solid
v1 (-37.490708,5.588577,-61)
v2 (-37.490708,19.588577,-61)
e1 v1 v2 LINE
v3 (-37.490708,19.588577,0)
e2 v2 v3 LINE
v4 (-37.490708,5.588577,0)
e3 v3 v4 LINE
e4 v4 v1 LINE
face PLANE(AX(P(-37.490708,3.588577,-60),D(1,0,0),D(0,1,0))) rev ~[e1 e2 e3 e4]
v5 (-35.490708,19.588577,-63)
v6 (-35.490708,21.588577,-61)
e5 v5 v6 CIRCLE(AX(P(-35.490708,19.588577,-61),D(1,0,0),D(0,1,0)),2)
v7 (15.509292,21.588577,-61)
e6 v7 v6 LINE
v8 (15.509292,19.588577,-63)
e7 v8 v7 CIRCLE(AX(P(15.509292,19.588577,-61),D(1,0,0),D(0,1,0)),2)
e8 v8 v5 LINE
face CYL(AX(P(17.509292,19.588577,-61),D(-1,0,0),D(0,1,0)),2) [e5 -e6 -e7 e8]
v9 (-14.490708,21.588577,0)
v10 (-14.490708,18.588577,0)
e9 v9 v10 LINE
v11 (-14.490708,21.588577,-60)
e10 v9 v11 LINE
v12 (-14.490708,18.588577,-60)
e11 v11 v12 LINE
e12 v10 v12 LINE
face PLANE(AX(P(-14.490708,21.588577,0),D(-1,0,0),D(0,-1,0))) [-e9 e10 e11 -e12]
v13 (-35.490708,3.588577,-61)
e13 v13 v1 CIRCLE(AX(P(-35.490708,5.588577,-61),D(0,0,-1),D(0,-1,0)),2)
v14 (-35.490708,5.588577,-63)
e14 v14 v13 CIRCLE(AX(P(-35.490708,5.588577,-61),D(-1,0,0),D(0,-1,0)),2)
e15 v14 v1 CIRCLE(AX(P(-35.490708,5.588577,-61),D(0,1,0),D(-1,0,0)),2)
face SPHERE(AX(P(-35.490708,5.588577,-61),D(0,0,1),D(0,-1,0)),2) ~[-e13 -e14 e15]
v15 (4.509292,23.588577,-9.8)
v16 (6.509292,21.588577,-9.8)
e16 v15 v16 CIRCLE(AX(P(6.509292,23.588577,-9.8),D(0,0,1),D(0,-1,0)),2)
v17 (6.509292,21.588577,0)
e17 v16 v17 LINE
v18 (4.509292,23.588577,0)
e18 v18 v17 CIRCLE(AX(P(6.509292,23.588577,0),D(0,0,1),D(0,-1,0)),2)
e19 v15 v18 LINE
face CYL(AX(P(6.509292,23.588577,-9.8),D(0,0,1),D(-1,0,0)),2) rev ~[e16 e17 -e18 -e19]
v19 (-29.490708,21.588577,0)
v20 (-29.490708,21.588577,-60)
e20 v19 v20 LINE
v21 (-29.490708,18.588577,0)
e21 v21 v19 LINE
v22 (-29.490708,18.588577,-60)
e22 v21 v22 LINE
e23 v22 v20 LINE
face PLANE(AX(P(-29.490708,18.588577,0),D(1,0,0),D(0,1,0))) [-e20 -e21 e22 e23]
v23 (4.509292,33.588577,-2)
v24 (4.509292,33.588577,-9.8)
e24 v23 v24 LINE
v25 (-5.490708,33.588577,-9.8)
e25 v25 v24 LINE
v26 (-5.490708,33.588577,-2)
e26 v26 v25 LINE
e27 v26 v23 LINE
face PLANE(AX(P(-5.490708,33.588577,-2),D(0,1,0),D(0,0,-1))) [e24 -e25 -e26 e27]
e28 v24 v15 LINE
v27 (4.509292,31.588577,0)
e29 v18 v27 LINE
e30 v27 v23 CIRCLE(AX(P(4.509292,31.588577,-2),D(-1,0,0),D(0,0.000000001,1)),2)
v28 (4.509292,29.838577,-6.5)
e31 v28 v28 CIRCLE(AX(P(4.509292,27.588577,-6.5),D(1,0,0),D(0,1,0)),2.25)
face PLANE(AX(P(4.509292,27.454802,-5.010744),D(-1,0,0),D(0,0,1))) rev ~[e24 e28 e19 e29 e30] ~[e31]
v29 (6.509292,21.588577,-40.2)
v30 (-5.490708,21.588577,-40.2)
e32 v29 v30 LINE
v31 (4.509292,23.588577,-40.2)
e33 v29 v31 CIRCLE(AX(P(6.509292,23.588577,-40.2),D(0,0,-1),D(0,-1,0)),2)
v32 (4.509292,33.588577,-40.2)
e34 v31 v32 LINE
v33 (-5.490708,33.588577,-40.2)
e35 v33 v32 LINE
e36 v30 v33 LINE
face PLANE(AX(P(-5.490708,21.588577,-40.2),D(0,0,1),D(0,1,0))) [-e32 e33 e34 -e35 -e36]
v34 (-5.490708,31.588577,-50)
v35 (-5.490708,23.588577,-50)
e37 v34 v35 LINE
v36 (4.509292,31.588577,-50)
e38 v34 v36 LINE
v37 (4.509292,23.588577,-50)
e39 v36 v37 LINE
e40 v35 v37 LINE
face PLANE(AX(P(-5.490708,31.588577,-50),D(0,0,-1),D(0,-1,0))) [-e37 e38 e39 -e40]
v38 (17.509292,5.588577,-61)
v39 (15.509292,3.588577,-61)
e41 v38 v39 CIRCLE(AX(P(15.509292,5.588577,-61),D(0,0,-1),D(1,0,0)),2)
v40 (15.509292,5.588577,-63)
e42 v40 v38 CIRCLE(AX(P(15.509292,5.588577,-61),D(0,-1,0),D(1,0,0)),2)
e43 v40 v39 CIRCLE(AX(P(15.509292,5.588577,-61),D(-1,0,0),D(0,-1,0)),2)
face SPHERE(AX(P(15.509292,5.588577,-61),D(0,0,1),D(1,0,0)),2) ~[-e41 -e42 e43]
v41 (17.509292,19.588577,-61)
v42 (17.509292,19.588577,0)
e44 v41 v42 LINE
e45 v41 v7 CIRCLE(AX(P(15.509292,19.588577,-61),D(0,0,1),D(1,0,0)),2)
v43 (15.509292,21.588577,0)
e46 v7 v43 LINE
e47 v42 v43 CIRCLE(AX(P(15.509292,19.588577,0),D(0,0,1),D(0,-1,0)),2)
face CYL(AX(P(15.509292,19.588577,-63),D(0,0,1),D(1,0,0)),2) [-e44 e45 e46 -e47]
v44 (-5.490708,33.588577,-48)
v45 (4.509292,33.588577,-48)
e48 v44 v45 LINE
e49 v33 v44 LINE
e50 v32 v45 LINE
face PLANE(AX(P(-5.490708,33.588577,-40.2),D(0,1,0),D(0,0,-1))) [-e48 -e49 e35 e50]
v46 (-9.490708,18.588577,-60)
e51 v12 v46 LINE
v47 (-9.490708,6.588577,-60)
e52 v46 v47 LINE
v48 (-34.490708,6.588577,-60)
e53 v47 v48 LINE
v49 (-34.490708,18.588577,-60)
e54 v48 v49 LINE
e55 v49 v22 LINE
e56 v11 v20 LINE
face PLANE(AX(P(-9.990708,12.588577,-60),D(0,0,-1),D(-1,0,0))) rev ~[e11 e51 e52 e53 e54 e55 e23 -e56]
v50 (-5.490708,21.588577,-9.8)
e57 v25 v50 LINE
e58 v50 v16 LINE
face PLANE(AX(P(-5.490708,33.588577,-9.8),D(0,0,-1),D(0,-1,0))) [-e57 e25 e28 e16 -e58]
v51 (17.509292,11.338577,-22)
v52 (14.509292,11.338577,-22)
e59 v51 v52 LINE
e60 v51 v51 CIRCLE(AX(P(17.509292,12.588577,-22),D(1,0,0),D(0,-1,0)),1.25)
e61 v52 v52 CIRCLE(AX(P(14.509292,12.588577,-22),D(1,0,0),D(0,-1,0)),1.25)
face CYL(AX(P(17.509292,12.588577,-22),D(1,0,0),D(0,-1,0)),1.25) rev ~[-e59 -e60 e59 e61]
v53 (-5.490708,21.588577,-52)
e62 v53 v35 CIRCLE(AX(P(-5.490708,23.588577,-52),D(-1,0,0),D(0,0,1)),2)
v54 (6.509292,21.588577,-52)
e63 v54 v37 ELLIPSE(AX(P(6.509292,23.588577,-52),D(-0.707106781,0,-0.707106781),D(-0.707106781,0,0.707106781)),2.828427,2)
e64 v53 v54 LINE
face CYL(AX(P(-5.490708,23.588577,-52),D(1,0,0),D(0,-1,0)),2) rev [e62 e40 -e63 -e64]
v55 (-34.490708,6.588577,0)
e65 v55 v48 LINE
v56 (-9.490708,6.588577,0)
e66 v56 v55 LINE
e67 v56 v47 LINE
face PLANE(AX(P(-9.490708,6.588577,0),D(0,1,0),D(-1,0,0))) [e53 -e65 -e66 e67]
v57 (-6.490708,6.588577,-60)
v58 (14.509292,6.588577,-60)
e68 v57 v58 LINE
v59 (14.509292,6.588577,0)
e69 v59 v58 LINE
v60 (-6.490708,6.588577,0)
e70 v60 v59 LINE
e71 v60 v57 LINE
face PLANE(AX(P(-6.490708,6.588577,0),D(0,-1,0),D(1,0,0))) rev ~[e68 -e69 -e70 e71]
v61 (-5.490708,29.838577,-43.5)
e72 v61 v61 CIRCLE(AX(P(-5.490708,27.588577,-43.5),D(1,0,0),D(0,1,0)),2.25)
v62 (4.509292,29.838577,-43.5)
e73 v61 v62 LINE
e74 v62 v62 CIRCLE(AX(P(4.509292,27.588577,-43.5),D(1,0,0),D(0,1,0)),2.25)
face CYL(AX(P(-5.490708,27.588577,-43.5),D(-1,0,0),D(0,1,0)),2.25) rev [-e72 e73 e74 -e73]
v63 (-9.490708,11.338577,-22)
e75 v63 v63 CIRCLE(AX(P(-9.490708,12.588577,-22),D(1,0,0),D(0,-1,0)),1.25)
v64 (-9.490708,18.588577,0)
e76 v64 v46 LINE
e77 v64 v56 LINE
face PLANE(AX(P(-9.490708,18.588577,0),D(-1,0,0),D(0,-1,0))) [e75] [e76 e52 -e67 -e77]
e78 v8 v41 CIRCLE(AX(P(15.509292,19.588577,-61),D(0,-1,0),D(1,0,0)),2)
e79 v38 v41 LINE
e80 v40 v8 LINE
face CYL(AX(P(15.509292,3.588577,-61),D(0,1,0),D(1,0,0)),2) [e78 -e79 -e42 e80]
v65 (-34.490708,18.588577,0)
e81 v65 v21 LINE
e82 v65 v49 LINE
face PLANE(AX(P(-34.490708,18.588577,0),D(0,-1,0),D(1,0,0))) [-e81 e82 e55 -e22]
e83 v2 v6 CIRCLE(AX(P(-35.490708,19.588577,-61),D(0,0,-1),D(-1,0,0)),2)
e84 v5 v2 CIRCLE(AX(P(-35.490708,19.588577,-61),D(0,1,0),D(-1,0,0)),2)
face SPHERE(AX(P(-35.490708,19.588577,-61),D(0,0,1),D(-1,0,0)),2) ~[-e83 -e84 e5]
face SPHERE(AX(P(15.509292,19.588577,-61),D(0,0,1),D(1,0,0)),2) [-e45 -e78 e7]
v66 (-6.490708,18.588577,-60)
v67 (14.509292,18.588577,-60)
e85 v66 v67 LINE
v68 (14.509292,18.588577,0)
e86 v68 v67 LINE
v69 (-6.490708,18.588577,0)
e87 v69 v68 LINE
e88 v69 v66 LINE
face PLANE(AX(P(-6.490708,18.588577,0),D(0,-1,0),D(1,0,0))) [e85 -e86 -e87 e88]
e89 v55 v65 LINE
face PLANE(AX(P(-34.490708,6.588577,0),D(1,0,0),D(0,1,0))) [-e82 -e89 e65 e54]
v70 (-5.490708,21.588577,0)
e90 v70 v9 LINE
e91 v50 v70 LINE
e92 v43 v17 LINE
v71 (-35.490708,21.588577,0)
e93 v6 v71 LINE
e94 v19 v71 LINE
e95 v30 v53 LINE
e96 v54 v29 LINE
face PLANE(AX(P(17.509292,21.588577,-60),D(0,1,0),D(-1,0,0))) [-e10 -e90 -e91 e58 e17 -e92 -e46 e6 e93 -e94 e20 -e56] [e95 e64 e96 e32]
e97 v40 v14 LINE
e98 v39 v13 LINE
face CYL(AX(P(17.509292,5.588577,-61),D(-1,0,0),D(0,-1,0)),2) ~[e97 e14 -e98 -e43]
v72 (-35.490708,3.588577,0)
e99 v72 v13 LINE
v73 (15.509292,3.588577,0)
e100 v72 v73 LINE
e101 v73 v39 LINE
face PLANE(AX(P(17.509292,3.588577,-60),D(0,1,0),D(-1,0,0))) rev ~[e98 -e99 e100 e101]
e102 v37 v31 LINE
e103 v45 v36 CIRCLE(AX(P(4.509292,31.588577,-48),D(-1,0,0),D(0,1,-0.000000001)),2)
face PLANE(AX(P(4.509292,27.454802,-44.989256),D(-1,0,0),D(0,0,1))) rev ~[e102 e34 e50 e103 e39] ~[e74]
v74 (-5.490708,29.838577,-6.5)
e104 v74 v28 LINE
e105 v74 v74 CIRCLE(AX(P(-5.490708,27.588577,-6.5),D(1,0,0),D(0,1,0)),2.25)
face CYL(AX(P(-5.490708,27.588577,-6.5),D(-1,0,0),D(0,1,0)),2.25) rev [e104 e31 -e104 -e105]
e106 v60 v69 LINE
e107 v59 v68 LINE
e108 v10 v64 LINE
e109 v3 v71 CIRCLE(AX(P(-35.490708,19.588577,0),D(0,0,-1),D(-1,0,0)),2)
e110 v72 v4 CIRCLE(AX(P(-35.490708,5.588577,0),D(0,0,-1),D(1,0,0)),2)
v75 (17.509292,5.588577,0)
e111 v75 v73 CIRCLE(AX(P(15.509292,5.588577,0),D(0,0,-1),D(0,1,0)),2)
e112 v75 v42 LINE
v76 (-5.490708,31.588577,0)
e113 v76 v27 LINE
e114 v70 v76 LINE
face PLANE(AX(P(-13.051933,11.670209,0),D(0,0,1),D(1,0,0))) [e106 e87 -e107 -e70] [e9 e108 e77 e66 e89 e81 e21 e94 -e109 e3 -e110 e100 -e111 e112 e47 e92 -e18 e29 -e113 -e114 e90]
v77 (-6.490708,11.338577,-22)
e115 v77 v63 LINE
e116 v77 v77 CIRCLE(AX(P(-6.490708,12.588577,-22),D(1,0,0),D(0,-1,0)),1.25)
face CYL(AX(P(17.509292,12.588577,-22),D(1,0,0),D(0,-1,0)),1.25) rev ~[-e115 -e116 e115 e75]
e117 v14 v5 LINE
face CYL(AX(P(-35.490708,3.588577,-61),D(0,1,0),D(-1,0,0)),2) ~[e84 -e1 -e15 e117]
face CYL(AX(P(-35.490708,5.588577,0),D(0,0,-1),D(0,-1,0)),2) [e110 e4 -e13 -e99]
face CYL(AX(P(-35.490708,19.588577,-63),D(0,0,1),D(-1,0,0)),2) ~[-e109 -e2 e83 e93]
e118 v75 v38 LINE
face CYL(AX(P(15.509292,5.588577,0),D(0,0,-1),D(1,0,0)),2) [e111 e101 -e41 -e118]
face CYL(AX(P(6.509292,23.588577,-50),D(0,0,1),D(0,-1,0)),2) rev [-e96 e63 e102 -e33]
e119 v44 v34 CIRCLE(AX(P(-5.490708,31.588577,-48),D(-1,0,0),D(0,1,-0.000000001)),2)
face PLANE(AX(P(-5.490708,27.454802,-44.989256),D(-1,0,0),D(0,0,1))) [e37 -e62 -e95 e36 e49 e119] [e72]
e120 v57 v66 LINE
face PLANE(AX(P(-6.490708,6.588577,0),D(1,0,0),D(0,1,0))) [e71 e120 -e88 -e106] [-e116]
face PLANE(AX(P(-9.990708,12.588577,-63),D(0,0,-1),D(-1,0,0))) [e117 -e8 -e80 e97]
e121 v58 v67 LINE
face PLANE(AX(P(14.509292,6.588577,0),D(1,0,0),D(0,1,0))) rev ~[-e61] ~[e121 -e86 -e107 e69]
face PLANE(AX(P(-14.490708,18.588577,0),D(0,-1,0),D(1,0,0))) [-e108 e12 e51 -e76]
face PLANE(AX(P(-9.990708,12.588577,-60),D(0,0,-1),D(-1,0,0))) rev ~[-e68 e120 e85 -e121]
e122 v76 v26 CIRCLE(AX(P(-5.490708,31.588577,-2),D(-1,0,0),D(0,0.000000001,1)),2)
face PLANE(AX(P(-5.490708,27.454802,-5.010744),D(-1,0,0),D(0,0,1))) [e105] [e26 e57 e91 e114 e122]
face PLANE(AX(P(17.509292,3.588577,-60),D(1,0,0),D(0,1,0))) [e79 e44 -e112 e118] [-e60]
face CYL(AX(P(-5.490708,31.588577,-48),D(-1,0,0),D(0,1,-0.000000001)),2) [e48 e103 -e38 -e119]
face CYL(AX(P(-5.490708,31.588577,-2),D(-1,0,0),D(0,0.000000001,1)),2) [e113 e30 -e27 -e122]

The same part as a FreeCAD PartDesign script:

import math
import FreeCAD as App
import Part
import Sketcher
from FreeCAD import Vector
Q = App.Units.Quantity


def edges_at(feature, points):
    """Names of the edges that pass closest to the given points."""
    edges = feature.Shape.Edges
    near = lambda p: min(range(len(edges)), key=lambda i: edges[i].distToShape(Part.Vertex(*p))[0])
    return sorted({f"Edge{near(p) + 1}" for p in points})


def add_polygon(sketch, points):
    """Adds a closed chain of lines whose ends are joined by coincident constraints."""
    first, n = sketch.GeometryCount, len(points)
    for a, b in zip(points, points[1:] + points[:1]):
        sketch.addGeometry(Part.LineSegment(App.Vector(*a, 0), App.Vector(*b, 0)), False)
    for i in range(n):
        sketch.addConstraint(Sketcher.Constraint("Coincident", first + i, 2, first + (i + 1) % n, 1))

doc = App.newDocument("Part")
body = doc.addObject("PartDesign::Body", "Body")

# Sketch on XY plane
sketch1 = body.newObject("Sketcher::SketchObject", "Sketch")
sketch1.AttachmentSupport = (doc.getObject("XY_Plane"), [""])
sketch1.MapMode = "FlatFace"
add_polygon(sketch1, [(17.5, 21.6), (-14.5, 21.6), (-14.5, 18.6), (-9.5, 18.6), (-9.5, 6.6), (-34.5, 6.6), (-34.5, 18.6), (-29.5, 18.6), (-29.5, 21.6), (-37.5, 21.6), (-37.5, 3.6), (17.5, 3.6)])  # lines 0-11
add_polygon(sketch1, [(14.5, 6.6), (-6.5, 6.6), (-6.5, 18.6), (14.5, 18.6)])  # lines 12-15
sketch1.addConstraint([
    Sketcher.Constraint("Horizontal", 0),
    Sketcher.Constraint("Vertical", 1),
    Sketcher.Constraint("Horizontal", 2),
    Sketcher.Constraint("Vertical", 3),
    Sketcher.Constraint("Horizontal", 4),
    Sketcher.Constraint("Vertical", 5),
    Sketcher.Constraint("Horizontal", 6),
    Sketcher.Constraint("Vertical", 7),
    Sketcher.Constraint("Horizontal", 8),
    Sketcher.Constraint("Vertical", 9),
    Sketcher.Constraint("Horizontal", 10),
    Sketcher.Constraint("Vertical", 11),
    Sketcher.Constraint("Horizontal", 12),
    Sketcher.Constraint("Vertical", 13),
    Sketcher.Constraint("Horizontal", 14),
    Sketcher.Constraint("Vertical", 15),
    Sketcher.Constraint("Horizontal", 2, 2, 5, 2),
    Sketcher.Constraint("Horizontal", 0, 2, 7, 2),
    Sketcher.Constraint("Horizontal", 4, 2, 12, 2),
    Sketcher.Constraint("Horizontal", 6, 2, 13, 2),
    Sketcher.Constraint("Equal", 2, 6),
    Sketcher.Constraint("DistanceX", 0, 2, 0, 1, Q("32 mm")),
    Sketcher.Constraint("DistanceX", 2, 1, 2, 2, Q("5 mm")),
    Sketcher.Constraint("DistanceX", 4, 2, 4, 1, Q("25 mm")),
    Sketcher.Constraint("DistanceX", 8, 2, 8, 1, Q("8 mm")),
    Sketcher.Constraint("DistanceX", 12, 2, 12, 1, Q("21 mm")),
    Sketcher.Constraint("DistanceY", 1, 2, 1, 1, Q("3 mm")),
    Sketcher.Constraint("DistanceY", 3, 2, 3, 1, Q("12 mm")),
    Sketcher.Constraint("DistanceY", 9, 2, 9, 1, Q("18 mm")),
    Sketcher.Constraint("DistanceX", 3, 2, 12, 2, Q("3 mm")),
    Sketcher.Constraint("DistanceX", 0, 2, -1, 1, Q("14.490708 mm")),
    Sketcher.Constraint("DistanceY", -1, 1, 0, 2, Q("21.588577 mm")),
])
pad1 = body.newObject("PartDesign::Pad", "Pad")
pad1.Profile = sketch1
pad1.Length = 60
pad1.Reversed = True

# Sketch on YZ plane
sketch2 = body.newObject("Sketcher::SketchObject", "Sketch001")
sketch2.AttachmentSupport = (doc.getObject("YZ_Plane"), [""])
sketch2.MapMode = "FlatFace"
sketch2.AttachmentOffset = App.Placement(Vector(0, 0, -5.490708), App.Rotation())
sketch2.addGeometry([
    Part.LineSegment(Vector(21.6, -40.2, 0), Vector(21.6, -50, 0)),  # 0
    Part.LineSegment(Vector(21.6, -50, 0), Vector(31.6, -50, 0)),  # 1
    Part.ArcOfCircle(Part.Circle(Vector(31.6, -48, 0), Vector(0, 0, 1), 2), math.radians(-90), math.radians(0)),  # 2
    Part.LineSegment(Vector(33.6, -48, 0), Vector(33.6, -40.2, 0)),  # 3
    Part.LineSegment(Vector(33.6, -40.2, 0), Vector(21.6, -40.2, 0)),  # 4
    Part.Circle(Vector(27.6, -43.5, 0), Vector(0, 0, 1), 2.2),  # 5
    Part.LineSegment(Vector(21.6, 0, 0), Vector(21.6, -9.8, 0)),  # 6
    Part.LineSegment(Vector(21.6, -9.8, 0), Vector(33.6, -9.8, 0)),  # 7
    Part.LineSegment(Vector(33.6, -9.8, 0), Vector(33.6, -2, 0)),  # 8
    Part.ArcOfCircle(Part.Circle(Vector(31.6, -2, 0), Vector(0, 0, 1), 2), math.radians(0), math.radians(90)),  # 9
    Part.LineSegment(Vector(31.6, 0, 0), Vector(21.6, 0, 0)),  # 10
    Part.Circle(Vector(27.6, -6.5, 0), Vector(0, 0, 1), 2.2),  # 11
], False)
sketch2.addConstraint([
    Sketcher.Constraint("Coincident", 0, 2, 1, 1),
    Sketcher.Constraint("Tangent", 1, 2, 2, 1),
    Sketcher.Constraint("Tangent", 2, 2, 3, 1),
    Sketcher.Constraint("Coincident", 3, 2, 4, 1),
    Sketcher.Constraint("Coincident", 4, 2, 0, 1),
    Sketcher.Constraint("Coincident", 6, 2, 7, 1),
    Sketcher.Constraint("Coincident", 7, 2, 8, 1),
    Sketcher.Constraint("Tangent", 8, 2, 9, 1),
    Sketcher.Constraint("Tangent", 9, 2, 10, 1),
    Sketcher.Constraint("Coincident", 10, 2, 6, 1),
    Sketcher.Constraint("Vertical", 0),
    Sketcher.Constraint("Horizontal", 1),
    Sketcher.Constraint("Vertical", 3),
    Sketcher.Constraint("Horizontal", 4),
    Sketcher.Constraint("Vertical", 6),
    Sketcher.Constraint("Horizontal", 7),
    Sketcher.Constraint("Vertical", 8),
    Sketcher.Constraint("Horizontal", 10),
    Sketcher.Constraint("Equal", 2, 9),
    Sketcher.Constraint("Equal", 5, 11),
    Sketcher.Constraint("PointOnObject", 9, 2, -1),
    Sketcher.Constraint("Vertical", 2, 3, 9, 3),
    Sketcher.Constraint("Vertical", 5, 3, 11, 3),
    Sketcher.Constraint("Vertical", 4, 2, 6, 2),
    Sketcher.Constraint("Equal", 0, 6),
    Sketcher.Constraint("Radius", 2, Q("2 mm")),
    Sketcher.Constraint("Diameter", 5, Q("4.5 mm")),
    Sketcher.Constraint("DistanceX", 1, 1, 1, 2, Q("10 mm")),
    Sketcher.Constraint("DistanceY", 0, 2, 0, 1, Q("9.8 mm")),
    Sketcher.Constraint("DistanceY", 2, 3, -1, 1, Q("48 mm")),
    Sketcher.Constraint("DistanceX", 5, 3, 2, 3, Q("4 mm")),
    Sketcher.Constraint("DistanceY", 5, 3, 11, 3, Q("37 mm")),
    Sketcher.Constraint("DistanceY", 5, 3, -1, 1, Q("43.5 mm")),
    Sketcher.Constraint("DistanceX", -1, 1, 2, 3, Q("31.588577 mm")),
])
pad2 = body.newObject("PartDesign::Pad", "Pad001")
pad2.Profile = sketch2
pad2.Length = 10

# Sketch on XY plane
sketch3 = body.newObject("Sketcher::SketchObject", "Sketch002")
sketch3.AttachmentSupport = (doc.getObject("XY_Plane"), [""])
sketch3.MapMode = "FlatFace"
sketch3.AttachmentOffset = App.Placement(Vector(0, 0, -60), App.Rotation())
add_polygon(sketch3, [(18, 22), (18, 4), (-37, 4), (-37, 22)])  # lines 0-3
sketch3.addConstraint([
    Sketcher.Constraint("Vertical", 0),
    Sketcher.Constraint("Horizontal", 1),
    Sketcher.Constraint("Vertical", 2),
    Sketcher.Constraint("Horizontal", 3),
    Sketcher.Constraint("DistanceX", 1, 2, 1, 1, Q("55 mm")),
    Sketcher.Constraint("DistanceY", 0, 2, 0, 1, Q("18 mm")),
    Sketcher.Constraint("DistanceX", -1, 1, 0, 2, Q("17.509292 mm")),
    Sketcher.Constraint("DistanceY", -1, 1, 0, 2, Q("3.588577 mm")),
])
pad3 = body.newObject("PartDesign::Pad", "Pad002")
pad3.Profile = sketch3
pad3.Length = 3
pad3.Reversed = True
doc.recompute()

fillet = body.newObject("PartDesign::Fillet", "Fillet")
fillet.Base = (pad3, edges_at(pad3, [
    (17.509, 3.589, -31.5),
    (-37.491, 3.589, -31.5),
    (-37.491, 21.589, -31.5),
    (17.509, 21.589, -31.5),
    (4.509, 21.589, -45.1),
    (-0.491, 21.589, -50),
    (4.509, 21.589, -4.9),
    (17.509, 12.589, -63),
    (-9.991, 3.589, -63),
    (-37.491, 12.589, -63),
    (-9.991, 21.589, -63),
]))
fillet.Radius = 2

# Sketch on YZ plane
sketch4 = body.newObject("Sketcher::SketchObject", "Sketch003")
sketch4.AttachmentSupport = (doc.getObject("YZ_Plane"), [""])
sketch4.MapMode = "FlatFace"
sketch4.AttachmentOffset = App.Placement(Vector(0, 0, 17.509292), App.Rotation())
sketch4.addGeometry(Part.Circle(Vector(12.6, -22, 0), Vector(0, 0, 1), 1.2), False)
sketch4.addConstraint([
    Sketcher.Constraint("Diameter", 0, Q("2.5 mm")),
    Sketcher.Constraint("DistanceY", 0, 3, -1, 1, Q("22 mm")),
    Sketcher.Constraint("DistanceX", -1, 1, 0, 3, Q("12.588577 mm")),
])
pocket1 = body.newObject("PartDesign::Pocket", "Pocket")
pocket1.Profile = sketch4
pocket1.Length = 30

doc.recompute()
